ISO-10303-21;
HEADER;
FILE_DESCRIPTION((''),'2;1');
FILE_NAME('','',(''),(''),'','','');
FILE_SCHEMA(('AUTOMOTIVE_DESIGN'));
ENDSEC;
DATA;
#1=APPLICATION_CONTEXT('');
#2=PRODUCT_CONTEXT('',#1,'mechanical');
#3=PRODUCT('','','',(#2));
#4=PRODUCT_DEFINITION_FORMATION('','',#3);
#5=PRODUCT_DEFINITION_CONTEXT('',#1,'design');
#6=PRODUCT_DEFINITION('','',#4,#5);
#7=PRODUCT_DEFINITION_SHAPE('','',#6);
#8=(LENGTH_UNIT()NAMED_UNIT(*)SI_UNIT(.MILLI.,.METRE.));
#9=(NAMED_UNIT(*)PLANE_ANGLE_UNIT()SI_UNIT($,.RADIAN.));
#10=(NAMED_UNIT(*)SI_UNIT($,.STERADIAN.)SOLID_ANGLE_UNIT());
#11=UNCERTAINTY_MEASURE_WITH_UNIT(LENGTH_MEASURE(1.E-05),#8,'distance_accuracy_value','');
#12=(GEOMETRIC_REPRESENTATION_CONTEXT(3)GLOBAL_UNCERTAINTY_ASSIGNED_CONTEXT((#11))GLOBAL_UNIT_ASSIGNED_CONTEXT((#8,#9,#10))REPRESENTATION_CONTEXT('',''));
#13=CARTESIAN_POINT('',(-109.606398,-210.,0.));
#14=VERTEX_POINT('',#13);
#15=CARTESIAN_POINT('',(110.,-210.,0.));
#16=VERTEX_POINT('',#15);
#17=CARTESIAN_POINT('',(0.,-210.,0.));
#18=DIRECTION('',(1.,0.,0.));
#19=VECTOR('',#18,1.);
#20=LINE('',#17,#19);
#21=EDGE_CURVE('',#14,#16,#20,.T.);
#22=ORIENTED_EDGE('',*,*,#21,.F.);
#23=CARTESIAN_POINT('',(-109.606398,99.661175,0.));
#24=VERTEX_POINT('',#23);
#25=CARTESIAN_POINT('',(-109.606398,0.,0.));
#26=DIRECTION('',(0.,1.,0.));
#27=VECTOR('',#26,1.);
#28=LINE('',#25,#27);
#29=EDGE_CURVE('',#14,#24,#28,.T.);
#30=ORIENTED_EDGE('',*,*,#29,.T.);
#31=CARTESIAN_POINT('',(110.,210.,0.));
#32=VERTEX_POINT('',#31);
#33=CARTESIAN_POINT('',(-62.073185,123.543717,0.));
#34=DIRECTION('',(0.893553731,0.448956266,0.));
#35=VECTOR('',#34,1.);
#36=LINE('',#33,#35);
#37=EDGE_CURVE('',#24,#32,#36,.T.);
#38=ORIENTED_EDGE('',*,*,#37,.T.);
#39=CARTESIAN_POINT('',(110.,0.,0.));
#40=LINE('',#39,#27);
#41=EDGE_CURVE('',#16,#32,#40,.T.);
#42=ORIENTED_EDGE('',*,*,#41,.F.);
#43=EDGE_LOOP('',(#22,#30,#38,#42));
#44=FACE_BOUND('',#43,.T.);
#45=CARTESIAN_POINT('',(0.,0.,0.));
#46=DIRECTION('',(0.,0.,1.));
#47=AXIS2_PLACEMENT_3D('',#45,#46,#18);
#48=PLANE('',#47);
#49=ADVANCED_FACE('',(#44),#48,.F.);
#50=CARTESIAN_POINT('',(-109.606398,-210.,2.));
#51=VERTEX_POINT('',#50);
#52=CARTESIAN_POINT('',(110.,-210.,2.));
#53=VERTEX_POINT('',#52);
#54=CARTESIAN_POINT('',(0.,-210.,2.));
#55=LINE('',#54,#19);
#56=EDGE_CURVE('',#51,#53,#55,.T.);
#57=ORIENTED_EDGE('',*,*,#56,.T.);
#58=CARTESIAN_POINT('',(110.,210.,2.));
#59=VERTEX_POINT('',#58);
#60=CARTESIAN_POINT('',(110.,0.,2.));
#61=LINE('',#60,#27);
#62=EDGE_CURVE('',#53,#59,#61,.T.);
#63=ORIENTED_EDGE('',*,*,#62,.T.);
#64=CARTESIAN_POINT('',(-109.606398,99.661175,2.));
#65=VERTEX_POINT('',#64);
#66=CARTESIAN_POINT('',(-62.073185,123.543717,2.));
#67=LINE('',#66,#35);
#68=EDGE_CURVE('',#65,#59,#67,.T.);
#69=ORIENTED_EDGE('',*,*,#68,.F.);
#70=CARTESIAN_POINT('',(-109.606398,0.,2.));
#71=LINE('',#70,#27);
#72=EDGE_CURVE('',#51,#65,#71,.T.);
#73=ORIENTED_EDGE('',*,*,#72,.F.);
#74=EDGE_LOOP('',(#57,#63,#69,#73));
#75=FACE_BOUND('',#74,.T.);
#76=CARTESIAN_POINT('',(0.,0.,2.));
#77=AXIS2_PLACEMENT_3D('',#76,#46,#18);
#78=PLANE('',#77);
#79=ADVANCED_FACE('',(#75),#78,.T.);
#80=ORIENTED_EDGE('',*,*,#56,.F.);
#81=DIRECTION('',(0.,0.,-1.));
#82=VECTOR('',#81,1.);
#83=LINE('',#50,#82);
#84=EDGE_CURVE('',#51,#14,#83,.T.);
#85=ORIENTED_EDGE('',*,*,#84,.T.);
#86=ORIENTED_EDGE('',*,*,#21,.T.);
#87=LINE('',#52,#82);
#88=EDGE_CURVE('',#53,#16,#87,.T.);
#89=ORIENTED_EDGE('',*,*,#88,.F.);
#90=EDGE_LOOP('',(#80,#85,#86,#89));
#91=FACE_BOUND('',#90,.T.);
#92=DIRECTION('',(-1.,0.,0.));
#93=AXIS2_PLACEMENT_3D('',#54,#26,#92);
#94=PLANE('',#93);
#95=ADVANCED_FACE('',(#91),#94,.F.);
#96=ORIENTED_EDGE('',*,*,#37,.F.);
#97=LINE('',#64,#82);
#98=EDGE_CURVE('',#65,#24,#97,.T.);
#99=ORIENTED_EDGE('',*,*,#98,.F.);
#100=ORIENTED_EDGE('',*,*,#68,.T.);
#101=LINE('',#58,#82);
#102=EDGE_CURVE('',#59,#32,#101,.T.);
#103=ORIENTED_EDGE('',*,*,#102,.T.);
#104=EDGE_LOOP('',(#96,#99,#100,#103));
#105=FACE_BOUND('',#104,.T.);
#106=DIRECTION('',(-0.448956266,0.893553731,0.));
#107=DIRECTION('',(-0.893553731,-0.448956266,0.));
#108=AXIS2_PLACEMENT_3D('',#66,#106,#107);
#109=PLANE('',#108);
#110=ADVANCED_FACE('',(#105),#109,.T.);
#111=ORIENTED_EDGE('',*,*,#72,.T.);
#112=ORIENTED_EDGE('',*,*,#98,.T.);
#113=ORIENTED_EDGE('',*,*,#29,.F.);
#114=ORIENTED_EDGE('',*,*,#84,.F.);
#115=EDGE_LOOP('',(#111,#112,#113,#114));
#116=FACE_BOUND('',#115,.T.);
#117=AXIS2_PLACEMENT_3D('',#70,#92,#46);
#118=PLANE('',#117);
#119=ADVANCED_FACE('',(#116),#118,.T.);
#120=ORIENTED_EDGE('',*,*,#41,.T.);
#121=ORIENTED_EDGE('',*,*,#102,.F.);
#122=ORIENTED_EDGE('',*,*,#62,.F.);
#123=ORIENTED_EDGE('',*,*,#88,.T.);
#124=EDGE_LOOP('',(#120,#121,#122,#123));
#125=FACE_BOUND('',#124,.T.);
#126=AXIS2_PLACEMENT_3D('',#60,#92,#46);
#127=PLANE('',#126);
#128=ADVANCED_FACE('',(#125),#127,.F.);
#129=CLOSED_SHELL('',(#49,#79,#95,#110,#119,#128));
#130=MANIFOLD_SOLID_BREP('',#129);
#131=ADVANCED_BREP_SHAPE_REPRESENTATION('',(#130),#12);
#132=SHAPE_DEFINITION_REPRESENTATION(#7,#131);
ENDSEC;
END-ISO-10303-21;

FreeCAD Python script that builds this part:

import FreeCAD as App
import Part
import Sketcher
Q = App.Units.Quantity


def add_polygon(sketch, points):
    """Adds a closed chain of lines whose ends are joined by coincident constraints."""
    first, n = sketch.GeometryCount, len(points)
    for a, b in zip(points, points[1:] + points[:1]):
        sketch.addGeometry(Part.LineSegment(App.Vector(*a, 0), App.Vector(*b, 0)), False)
    for i in range(n):
        sketch.addConstraint(Sketcher.Constraint("Coincident", first + i, 2, first + (i + 1) % n, 1))

doc = App.newDocument("Part")
body = doc.addObject("PartDesign::Body", "Body")

sketch1 = body.newObject("Sketcher::SketchObject", "Sketch")
sketch1.AttachmentSupport = (doc.getObject("XY_Plane"), [""])
sketch1.MapMode = "FlatFace"
add_polygon(sketch1, [(-110, 100), (-110, -210), (110, -210), (110, 210)])
sketch1.addConstraint([
    Sketcher.Constraint("Vertical", 0),
    Sketcher.Constraint("Horizontal", 1),
    Sketcher.Constraint("Vertical", 2),
    Sketcher.Constraint("DistanceY", 2, 1, 2, 2, Q("420 mm")),
    Sketcher.Constraint("DistanceY", 0, 2, -1, 1, Q("210 mm")),
    Sketcher.Constraint("DistanceX", -1, 1, 1, 2, Q("110 mm")),
    Sketcher.Constraint("DistanceX", 1, 1, 1, 2, Q("219.606398 mm")),
    Sketcher.Constraint("DistanceY", 0, 2, 0, 1, Q("309.661175 mm")),
])
pad1 = body.newObject("PartDesign::Pad", "Pad")
pad1.Profile = sketch1
pad1.Length = 2

doc.recompute()
